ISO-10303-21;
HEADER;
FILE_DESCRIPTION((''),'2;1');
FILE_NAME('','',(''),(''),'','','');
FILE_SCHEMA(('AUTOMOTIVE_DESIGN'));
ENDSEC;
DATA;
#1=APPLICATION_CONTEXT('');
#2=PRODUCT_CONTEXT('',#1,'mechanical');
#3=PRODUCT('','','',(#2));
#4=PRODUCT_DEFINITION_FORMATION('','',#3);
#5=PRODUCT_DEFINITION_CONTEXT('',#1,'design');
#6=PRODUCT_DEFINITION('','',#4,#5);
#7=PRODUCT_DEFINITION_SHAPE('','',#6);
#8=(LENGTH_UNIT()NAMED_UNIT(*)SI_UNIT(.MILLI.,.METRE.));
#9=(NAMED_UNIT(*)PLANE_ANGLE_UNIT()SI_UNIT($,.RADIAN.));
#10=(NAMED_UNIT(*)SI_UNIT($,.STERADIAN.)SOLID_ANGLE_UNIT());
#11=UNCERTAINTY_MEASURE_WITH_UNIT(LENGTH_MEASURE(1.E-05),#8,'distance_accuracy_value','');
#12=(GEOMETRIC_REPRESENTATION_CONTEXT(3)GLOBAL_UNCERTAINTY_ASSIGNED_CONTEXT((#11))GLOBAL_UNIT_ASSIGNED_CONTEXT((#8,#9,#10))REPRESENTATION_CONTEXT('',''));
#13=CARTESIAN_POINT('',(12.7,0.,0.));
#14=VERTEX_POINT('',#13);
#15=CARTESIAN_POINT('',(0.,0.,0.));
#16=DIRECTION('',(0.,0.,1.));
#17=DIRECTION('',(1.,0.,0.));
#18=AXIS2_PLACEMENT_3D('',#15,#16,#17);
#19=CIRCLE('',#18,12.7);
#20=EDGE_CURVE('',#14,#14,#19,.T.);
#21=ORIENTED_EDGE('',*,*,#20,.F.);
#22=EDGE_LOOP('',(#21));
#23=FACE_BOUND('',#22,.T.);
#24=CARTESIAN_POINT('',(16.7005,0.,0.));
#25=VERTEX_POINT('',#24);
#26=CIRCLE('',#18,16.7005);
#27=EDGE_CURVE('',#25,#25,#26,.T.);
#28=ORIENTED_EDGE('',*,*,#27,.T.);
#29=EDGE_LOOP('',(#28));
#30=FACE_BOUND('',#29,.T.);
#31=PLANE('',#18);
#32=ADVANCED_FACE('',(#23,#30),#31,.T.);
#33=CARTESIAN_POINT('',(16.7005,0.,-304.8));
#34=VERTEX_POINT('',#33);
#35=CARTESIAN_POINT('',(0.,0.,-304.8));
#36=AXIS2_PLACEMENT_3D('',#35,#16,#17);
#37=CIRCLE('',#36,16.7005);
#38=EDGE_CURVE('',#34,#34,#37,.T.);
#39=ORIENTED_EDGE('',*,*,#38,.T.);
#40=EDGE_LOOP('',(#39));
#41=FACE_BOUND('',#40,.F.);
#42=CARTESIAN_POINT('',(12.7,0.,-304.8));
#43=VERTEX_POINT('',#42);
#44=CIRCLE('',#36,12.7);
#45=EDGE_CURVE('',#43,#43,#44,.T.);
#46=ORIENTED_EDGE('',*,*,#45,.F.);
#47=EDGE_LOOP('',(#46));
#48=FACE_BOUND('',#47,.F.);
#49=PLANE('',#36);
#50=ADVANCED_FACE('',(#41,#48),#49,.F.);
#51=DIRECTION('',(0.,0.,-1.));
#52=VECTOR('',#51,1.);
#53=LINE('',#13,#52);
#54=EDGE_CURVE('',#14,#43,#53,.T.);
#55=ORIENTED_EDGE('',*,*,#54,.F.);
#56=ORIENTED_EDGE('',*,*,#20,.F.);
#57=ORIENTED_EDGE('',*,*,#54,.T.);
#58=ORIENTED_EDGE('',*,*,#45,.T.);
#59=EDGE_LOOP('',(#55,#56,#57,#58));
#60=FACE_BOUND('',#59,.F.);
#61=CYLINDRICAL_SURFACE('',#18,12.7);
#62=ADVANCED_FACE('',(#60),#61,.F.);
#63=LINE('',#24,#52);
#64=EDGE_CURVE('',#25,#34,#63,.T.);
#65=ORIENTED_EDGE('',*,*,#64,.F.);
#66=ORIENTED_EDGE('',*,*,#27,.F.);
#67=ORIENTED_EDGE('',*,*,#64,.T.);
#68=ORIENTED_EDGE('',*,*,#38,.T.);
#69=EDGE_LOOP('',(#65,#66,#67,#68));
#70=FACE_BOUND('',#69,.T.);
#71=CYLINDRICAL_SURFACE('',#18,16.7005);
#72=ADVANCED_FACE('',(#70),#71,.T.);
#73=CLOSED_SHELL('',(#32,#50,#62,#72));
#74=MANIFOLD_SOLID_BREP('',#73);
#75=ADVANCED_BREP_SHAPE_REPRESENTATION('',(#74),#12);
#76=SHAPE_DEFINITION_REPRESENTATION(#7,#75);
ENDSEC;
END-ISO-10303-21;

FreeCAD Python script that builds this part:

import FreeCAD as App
import Part
import Sketcher
from FreeCAD import Vector
Q = App.Units.Quantity

doc = App.newDocument("Part")
body = doc.addObject("PartDesign::Body", "Body")

# Sketch on XY plane
sketch1 = doc.addObject("Sketcher::SketchObject", "Sketch")
body.addObject(sketch1)
sketch1.AttachmentSupport = (doc.XY_Plane, [""])
sketch1.MapMode = "FlatFace"
sketch1.addGeometry([
    Part.Circle(Vector(0, 0, 0), Vector(0, 0, 1), 17),
    Part.Circle(Vector(0, 0, 0), Vector(0, 0, 1), 13),
], False)
sketch1.addConstraint([
    Sketcher.Constraint("Coincident", 0, 3, -1, 1),
    Sketcher.Constraint("Coincident", 1, 3, -1, 1),
    Sketcher.Constraint("Diameter", 1, Q("1 in")),
    Sketcher.Constraint("Diameter", 0, Q("1.315 in")),
])
pad1 = doc.addObject("PartDesign::Pad", "Pad")
body.addObject(pad1)
pad1.Profile = sketch1
pad1.Length = Q("12 in")
pad1.Reversed = True

doc.recompute()
